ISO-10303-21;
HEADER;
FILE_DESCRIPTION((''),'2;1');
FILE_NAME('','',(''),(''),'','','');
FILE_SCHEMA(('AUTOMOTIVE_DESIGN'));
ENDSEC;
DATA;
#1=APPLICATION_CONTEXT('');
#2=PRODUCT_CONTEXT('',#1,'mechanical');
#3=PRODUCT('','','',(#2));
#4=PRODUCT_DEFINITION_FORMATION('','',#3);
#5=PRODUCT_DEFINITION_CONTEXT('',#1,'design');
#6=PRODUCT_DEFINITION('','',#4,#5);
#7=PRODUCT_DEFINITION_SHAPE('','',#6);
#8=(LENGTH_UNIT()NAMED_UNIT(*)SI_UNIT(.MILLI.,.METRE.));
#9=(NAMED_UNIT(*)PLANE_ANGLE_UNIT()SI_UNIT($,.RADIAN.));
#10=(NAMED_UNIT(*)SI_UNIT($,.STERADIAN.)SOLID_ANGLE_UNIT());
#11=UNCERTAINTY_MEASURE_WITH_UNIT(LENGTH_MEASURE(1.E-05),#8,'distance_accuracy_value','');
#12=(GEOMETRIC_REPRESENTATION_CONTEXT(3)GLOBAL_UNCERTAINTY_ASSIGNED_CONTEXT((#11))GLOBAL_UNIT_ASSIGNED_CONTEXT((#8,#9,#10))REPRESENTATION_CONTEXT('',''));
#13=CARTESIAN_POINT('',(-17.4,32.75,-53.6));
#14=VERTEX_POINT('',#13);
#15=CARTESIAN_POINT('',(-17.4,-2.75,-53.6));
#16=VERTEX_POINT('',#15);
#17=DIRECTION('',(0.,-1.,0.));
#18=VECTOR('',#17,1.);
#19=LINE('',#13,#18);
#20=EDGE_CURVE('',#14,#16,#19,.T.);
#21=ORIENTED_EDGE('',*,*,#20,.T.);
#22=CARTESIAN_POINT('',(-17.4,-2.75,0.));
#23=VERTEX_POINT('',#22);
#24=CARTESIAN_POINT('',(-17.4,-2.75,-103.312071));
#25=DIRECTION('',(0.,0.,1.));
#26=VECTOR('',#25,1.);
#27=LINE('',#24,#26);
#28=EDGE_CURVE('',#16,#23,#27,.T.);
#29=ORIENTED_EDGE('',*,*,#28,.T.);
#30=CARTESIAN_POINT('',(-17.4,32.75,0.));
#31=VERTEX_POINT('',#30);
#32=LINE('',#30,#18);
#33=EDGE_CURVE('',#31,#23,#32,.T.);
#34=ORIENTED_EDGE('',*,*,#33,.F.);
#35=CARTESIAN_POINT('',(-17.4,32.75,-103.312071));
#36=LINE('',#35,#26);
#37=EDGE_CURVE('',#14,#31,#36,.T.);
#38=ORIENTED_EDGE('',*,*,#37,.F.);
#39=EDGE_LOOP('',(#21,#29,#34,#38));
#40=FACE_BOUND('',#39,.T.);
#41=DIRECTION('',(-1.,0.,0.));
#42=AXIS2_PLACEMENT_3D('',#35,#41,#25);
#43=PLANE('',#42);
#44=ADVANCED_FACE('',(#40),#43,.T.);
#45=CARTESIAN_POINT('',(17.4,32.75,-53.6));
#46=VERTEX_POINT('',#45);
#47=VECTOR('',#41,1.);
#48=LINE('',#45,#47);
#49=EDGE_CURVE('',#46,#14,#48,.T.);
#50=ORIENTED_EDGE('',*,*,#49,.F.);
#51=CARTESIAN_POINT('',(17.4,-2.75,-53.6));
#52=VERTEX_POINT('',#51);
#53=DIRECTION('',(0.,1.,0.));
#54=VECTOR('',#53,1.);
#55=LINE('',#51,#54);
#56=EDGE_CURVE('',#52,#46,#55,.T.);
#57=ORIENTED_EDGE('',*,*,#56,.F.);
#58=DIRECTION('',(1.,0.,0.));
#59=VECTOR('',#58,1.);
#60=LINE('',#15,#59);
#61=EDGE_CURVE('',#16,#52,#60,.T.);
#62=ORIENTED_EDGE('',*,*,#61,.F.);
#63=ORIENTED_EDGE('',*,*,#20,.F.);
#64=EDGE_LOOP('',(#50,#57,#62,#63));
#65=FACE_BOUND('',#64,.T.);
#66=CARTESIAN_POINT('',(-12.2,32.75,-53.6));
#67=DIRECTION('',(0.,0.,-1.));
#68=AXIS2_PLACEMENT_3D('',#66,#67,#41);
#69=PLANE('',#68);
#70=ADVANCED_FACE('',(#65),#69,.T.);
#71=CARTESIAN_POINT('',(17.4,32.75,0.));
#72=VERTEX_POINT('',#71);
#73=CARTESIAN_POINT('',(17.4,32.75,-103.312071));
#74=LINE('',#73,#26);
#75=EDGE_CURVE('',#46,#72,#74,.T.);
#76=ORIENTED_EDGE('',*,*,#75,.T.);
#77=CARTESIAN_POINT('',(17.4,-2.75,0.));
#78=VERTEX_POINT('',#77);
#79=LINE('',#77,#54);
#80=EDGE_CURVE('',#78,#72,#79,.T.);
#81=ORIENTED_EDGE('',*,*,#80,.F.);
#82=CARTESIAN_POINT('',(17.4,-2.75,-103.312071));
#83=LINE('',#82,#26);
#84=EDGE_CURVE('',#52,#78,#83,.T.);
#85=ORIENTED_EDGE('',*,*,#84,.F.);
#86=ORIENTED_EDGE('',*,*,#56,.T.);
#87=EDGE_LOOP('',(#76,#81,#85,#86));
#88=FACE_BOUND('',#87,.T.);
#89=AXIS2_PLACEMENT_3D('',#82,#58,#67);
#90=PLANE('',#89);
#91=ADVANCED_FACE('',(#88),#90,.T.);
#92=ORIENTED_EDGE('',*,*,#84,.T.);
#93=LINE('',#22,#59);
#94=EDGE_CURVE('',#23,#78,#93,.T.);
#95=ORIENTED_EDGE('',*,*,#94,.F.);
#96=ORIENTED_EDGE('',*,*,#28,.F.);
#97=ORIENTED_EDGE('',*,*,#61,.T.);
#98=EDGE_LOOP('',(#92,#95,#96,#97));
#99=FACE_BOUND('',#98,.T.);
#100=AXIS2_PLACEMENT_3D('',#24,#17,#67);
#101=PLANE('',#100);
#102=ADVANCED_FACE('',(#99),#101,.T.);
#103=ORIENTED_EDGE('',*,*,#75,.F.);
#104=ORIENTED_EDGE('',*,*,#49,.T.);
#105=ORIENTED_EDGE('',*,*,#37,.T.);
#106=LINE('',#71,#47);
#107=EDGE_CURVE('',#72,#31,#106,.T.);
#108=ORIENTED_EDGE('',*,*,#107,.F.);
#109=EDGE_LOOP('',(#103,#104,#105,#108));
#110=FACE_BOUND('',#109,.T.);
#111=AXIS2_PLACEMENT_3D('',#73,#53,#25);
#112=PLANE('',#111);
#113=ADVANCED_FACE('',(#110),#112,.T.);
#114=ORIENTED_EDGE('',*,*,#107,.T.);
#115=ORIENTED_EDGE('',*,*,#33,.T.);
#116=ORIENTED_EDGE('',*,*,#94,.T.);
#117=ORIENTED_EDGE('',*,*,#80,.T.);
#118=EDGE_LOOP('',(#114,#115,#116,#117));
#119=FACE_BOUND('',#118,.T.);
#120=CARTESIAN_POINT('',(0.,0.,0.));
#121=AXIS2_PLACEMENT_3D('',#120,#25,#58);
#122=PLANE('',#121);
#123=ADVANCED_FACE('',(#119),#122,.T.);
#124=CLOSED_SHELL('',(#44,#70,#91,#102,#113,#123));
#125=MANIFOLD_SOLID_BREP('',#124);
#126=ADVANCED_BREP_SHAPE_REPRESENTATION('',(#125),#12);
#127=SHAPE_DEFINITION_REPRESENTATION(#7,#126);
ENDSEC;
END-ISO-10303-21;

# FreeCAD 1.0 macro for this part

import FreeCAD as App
import Part
import Sketcher


def add_polygon(sketch, points):
    """Adds a closed chain of lines whose ends are joined by coincident constraints."""
    first, n = sketch.GeometryCount, len(points)
    for a, b in zip(points, points[1:] + points[:1]):
        sketch.addGeometry(Part.LineSegment(App.Vector(*a, 0), App.Vector(*b, 0)), False)
    for i in range(n):
        sketch.addConstraint(Sketcher.Constraint("Coincident", first + i, 2, first + (i + 1) % n, 1))

doc = App.newDocument("Part")
body = doc.addObject("PartDesign::Body", "Body")

# Sketch on XY plane
sketch1 = doc.addObject("Sketcher::SketchObject", "Sketch")
body.addObject(sketch1)
sketch1.AttachmentSupport = (doc.XY_Plane, [""])
sketch1.MapMode = "FlatFace"
add_polygon(sketch1, [(-17, 33), (-17, -3), (17, -3), (17, 33)])  # lines 0-3
sketch1.addConstraint([
    Sketcher.Constraint("Vertical", 0),
    Sketcher.Constraint("Horizontal", 1),
    Sketcher.Constraint("Vertical", 2),
    Sketcher.Constraint("Horizontal", 3),
    Sketcher.Constraint("DistanceX", 1, 1, 1, 2, 34.8),
    Sketcher.Constraint("DistanceY", 0, 2, 0, 1, 35.5),
    Sketcher.Constraint("DistanceX", 0, 2, -1, 1, 17.4),
    Sketcher.Constraint("DistanceY", 0, 2, -1, 1, 2.75),
])
pad1 = doc.addObject("PartDesign::Pad", "Pad")
body.addObject(pad1)
pad1.Profile = sketch1
pad1.Length = 53.6
pad1.Reversed = True

doc.recompute()
